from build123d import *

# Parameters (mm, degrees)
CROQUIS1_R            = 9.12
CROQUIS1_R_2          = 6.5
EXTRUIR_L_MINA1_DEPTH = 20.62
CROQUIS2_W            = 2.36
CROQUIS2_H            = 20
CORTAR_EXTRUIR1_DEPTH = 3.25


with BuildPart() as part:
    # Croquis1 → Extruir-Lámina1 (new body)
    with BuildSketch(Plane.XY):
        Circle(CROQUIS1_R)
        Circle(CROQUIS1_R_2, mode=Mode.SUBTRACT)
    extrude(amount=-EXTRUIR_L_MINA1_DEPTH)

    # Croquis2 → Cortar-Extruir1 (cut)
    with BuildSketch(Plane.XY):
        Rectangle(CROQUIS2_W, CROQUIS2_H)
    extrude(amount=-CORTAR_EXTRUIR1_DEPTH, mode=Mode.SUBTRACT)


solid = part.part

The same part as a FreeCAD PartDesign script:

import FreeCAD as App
import Part
import Sketcher
from FreeCAD import Vector


def add_polygon(sketch, points):
    """Adds a closed chain of lines whose ends are joined by coincident constraints."""
    first, n = sketch.GeometryCount, len(points)
    for a, b in zip(points, points[1:] + points[:1]):
        sketch.addGeometry(Part.LineSegment(App.Vector(*a, 0), App.Vector(*b, 0)), False)
    for i in range(n):
        sketch.addConstraint(Sketcher.Constraint("Coincident", first + i, 2, first + (i + 1) % n, 1))

doc = App.newDocument("Part")
body = doc.addObject("PartDesign::Body", "Body")

sketch1 = body.newObject("Sketcher::SketchObject", "Sketch")
sketch1.AttachmentSupport = (doc.getObject("XY_Plane"), [""])
sketch1.MapMode = "FlatFace"
sketch1.addGeometry(Part.Circle(Vector(0, 0, 0), Vector(0, 0, 1), 9.12), False)
sketch1.addGeometry(Part.Circle(Vector(0, 0, 0), Vector(0, 0, 1), 6.5), False)
sketch1.addConstraint(Sketcher.Constraint("Coincident", 0, 3, -1, 1))
sketch1.addConstraint(Sketcher.Constraint("Coincident", 1, 3, -1, 1))
sketch1.addConstraint(Sketcher.Constraint("Diameter", 1, 13.0))
sketch1.addConstraint(Sketcher.Constraint("Diameter", 0, 18.24))
pad1 = body.newObject("PartDesign::Pad", "Pad")
pad1.Profile = sketch1
pad1.Length = 20.62
pad1.Reversed = True

sketch2 = body.newObject("Sketcher::SketchObject", "Sketch001")
sketch2.AttachmentSupport = (doc.getObject("XY_Plane"), [""])
sketch2.MapMode = "FlatFace"
add_polygon(sketch2, [(-1.18, 10), (-1.18, -10), (1.18, -10), (1.18, 10)])
sketch2.addConstraint(Sketcher.Constraint("Vertical", 0))
sketch2.addConstraint(Sketcher.Constraint("Horizontal", 1))
sketch2.addConstraint(Sketcher.Constraint("Vertical", 2))
sketch2.addConstraint(Sketcher.Constraint("Horizontal", 3))
sketch2.addConstraint(Sketcher.Constraint("Symmetric", 0, 2, 2, 2, -1, 1))
sketch2.addConstraint(Sketcher.Constraint("DistanceY", 0, 2, 0, 1, 20.0))
sketch2.addConstraint(Sketcher.Constraint("DistanceX", 1, 1, 1, 2, 2.36))
pocket1 = body.newObject("PartDesign::Pocket", "Pocket")
pocket1.Profile = sketch2
pocket1.Length = 3.25

doc.recompute()
